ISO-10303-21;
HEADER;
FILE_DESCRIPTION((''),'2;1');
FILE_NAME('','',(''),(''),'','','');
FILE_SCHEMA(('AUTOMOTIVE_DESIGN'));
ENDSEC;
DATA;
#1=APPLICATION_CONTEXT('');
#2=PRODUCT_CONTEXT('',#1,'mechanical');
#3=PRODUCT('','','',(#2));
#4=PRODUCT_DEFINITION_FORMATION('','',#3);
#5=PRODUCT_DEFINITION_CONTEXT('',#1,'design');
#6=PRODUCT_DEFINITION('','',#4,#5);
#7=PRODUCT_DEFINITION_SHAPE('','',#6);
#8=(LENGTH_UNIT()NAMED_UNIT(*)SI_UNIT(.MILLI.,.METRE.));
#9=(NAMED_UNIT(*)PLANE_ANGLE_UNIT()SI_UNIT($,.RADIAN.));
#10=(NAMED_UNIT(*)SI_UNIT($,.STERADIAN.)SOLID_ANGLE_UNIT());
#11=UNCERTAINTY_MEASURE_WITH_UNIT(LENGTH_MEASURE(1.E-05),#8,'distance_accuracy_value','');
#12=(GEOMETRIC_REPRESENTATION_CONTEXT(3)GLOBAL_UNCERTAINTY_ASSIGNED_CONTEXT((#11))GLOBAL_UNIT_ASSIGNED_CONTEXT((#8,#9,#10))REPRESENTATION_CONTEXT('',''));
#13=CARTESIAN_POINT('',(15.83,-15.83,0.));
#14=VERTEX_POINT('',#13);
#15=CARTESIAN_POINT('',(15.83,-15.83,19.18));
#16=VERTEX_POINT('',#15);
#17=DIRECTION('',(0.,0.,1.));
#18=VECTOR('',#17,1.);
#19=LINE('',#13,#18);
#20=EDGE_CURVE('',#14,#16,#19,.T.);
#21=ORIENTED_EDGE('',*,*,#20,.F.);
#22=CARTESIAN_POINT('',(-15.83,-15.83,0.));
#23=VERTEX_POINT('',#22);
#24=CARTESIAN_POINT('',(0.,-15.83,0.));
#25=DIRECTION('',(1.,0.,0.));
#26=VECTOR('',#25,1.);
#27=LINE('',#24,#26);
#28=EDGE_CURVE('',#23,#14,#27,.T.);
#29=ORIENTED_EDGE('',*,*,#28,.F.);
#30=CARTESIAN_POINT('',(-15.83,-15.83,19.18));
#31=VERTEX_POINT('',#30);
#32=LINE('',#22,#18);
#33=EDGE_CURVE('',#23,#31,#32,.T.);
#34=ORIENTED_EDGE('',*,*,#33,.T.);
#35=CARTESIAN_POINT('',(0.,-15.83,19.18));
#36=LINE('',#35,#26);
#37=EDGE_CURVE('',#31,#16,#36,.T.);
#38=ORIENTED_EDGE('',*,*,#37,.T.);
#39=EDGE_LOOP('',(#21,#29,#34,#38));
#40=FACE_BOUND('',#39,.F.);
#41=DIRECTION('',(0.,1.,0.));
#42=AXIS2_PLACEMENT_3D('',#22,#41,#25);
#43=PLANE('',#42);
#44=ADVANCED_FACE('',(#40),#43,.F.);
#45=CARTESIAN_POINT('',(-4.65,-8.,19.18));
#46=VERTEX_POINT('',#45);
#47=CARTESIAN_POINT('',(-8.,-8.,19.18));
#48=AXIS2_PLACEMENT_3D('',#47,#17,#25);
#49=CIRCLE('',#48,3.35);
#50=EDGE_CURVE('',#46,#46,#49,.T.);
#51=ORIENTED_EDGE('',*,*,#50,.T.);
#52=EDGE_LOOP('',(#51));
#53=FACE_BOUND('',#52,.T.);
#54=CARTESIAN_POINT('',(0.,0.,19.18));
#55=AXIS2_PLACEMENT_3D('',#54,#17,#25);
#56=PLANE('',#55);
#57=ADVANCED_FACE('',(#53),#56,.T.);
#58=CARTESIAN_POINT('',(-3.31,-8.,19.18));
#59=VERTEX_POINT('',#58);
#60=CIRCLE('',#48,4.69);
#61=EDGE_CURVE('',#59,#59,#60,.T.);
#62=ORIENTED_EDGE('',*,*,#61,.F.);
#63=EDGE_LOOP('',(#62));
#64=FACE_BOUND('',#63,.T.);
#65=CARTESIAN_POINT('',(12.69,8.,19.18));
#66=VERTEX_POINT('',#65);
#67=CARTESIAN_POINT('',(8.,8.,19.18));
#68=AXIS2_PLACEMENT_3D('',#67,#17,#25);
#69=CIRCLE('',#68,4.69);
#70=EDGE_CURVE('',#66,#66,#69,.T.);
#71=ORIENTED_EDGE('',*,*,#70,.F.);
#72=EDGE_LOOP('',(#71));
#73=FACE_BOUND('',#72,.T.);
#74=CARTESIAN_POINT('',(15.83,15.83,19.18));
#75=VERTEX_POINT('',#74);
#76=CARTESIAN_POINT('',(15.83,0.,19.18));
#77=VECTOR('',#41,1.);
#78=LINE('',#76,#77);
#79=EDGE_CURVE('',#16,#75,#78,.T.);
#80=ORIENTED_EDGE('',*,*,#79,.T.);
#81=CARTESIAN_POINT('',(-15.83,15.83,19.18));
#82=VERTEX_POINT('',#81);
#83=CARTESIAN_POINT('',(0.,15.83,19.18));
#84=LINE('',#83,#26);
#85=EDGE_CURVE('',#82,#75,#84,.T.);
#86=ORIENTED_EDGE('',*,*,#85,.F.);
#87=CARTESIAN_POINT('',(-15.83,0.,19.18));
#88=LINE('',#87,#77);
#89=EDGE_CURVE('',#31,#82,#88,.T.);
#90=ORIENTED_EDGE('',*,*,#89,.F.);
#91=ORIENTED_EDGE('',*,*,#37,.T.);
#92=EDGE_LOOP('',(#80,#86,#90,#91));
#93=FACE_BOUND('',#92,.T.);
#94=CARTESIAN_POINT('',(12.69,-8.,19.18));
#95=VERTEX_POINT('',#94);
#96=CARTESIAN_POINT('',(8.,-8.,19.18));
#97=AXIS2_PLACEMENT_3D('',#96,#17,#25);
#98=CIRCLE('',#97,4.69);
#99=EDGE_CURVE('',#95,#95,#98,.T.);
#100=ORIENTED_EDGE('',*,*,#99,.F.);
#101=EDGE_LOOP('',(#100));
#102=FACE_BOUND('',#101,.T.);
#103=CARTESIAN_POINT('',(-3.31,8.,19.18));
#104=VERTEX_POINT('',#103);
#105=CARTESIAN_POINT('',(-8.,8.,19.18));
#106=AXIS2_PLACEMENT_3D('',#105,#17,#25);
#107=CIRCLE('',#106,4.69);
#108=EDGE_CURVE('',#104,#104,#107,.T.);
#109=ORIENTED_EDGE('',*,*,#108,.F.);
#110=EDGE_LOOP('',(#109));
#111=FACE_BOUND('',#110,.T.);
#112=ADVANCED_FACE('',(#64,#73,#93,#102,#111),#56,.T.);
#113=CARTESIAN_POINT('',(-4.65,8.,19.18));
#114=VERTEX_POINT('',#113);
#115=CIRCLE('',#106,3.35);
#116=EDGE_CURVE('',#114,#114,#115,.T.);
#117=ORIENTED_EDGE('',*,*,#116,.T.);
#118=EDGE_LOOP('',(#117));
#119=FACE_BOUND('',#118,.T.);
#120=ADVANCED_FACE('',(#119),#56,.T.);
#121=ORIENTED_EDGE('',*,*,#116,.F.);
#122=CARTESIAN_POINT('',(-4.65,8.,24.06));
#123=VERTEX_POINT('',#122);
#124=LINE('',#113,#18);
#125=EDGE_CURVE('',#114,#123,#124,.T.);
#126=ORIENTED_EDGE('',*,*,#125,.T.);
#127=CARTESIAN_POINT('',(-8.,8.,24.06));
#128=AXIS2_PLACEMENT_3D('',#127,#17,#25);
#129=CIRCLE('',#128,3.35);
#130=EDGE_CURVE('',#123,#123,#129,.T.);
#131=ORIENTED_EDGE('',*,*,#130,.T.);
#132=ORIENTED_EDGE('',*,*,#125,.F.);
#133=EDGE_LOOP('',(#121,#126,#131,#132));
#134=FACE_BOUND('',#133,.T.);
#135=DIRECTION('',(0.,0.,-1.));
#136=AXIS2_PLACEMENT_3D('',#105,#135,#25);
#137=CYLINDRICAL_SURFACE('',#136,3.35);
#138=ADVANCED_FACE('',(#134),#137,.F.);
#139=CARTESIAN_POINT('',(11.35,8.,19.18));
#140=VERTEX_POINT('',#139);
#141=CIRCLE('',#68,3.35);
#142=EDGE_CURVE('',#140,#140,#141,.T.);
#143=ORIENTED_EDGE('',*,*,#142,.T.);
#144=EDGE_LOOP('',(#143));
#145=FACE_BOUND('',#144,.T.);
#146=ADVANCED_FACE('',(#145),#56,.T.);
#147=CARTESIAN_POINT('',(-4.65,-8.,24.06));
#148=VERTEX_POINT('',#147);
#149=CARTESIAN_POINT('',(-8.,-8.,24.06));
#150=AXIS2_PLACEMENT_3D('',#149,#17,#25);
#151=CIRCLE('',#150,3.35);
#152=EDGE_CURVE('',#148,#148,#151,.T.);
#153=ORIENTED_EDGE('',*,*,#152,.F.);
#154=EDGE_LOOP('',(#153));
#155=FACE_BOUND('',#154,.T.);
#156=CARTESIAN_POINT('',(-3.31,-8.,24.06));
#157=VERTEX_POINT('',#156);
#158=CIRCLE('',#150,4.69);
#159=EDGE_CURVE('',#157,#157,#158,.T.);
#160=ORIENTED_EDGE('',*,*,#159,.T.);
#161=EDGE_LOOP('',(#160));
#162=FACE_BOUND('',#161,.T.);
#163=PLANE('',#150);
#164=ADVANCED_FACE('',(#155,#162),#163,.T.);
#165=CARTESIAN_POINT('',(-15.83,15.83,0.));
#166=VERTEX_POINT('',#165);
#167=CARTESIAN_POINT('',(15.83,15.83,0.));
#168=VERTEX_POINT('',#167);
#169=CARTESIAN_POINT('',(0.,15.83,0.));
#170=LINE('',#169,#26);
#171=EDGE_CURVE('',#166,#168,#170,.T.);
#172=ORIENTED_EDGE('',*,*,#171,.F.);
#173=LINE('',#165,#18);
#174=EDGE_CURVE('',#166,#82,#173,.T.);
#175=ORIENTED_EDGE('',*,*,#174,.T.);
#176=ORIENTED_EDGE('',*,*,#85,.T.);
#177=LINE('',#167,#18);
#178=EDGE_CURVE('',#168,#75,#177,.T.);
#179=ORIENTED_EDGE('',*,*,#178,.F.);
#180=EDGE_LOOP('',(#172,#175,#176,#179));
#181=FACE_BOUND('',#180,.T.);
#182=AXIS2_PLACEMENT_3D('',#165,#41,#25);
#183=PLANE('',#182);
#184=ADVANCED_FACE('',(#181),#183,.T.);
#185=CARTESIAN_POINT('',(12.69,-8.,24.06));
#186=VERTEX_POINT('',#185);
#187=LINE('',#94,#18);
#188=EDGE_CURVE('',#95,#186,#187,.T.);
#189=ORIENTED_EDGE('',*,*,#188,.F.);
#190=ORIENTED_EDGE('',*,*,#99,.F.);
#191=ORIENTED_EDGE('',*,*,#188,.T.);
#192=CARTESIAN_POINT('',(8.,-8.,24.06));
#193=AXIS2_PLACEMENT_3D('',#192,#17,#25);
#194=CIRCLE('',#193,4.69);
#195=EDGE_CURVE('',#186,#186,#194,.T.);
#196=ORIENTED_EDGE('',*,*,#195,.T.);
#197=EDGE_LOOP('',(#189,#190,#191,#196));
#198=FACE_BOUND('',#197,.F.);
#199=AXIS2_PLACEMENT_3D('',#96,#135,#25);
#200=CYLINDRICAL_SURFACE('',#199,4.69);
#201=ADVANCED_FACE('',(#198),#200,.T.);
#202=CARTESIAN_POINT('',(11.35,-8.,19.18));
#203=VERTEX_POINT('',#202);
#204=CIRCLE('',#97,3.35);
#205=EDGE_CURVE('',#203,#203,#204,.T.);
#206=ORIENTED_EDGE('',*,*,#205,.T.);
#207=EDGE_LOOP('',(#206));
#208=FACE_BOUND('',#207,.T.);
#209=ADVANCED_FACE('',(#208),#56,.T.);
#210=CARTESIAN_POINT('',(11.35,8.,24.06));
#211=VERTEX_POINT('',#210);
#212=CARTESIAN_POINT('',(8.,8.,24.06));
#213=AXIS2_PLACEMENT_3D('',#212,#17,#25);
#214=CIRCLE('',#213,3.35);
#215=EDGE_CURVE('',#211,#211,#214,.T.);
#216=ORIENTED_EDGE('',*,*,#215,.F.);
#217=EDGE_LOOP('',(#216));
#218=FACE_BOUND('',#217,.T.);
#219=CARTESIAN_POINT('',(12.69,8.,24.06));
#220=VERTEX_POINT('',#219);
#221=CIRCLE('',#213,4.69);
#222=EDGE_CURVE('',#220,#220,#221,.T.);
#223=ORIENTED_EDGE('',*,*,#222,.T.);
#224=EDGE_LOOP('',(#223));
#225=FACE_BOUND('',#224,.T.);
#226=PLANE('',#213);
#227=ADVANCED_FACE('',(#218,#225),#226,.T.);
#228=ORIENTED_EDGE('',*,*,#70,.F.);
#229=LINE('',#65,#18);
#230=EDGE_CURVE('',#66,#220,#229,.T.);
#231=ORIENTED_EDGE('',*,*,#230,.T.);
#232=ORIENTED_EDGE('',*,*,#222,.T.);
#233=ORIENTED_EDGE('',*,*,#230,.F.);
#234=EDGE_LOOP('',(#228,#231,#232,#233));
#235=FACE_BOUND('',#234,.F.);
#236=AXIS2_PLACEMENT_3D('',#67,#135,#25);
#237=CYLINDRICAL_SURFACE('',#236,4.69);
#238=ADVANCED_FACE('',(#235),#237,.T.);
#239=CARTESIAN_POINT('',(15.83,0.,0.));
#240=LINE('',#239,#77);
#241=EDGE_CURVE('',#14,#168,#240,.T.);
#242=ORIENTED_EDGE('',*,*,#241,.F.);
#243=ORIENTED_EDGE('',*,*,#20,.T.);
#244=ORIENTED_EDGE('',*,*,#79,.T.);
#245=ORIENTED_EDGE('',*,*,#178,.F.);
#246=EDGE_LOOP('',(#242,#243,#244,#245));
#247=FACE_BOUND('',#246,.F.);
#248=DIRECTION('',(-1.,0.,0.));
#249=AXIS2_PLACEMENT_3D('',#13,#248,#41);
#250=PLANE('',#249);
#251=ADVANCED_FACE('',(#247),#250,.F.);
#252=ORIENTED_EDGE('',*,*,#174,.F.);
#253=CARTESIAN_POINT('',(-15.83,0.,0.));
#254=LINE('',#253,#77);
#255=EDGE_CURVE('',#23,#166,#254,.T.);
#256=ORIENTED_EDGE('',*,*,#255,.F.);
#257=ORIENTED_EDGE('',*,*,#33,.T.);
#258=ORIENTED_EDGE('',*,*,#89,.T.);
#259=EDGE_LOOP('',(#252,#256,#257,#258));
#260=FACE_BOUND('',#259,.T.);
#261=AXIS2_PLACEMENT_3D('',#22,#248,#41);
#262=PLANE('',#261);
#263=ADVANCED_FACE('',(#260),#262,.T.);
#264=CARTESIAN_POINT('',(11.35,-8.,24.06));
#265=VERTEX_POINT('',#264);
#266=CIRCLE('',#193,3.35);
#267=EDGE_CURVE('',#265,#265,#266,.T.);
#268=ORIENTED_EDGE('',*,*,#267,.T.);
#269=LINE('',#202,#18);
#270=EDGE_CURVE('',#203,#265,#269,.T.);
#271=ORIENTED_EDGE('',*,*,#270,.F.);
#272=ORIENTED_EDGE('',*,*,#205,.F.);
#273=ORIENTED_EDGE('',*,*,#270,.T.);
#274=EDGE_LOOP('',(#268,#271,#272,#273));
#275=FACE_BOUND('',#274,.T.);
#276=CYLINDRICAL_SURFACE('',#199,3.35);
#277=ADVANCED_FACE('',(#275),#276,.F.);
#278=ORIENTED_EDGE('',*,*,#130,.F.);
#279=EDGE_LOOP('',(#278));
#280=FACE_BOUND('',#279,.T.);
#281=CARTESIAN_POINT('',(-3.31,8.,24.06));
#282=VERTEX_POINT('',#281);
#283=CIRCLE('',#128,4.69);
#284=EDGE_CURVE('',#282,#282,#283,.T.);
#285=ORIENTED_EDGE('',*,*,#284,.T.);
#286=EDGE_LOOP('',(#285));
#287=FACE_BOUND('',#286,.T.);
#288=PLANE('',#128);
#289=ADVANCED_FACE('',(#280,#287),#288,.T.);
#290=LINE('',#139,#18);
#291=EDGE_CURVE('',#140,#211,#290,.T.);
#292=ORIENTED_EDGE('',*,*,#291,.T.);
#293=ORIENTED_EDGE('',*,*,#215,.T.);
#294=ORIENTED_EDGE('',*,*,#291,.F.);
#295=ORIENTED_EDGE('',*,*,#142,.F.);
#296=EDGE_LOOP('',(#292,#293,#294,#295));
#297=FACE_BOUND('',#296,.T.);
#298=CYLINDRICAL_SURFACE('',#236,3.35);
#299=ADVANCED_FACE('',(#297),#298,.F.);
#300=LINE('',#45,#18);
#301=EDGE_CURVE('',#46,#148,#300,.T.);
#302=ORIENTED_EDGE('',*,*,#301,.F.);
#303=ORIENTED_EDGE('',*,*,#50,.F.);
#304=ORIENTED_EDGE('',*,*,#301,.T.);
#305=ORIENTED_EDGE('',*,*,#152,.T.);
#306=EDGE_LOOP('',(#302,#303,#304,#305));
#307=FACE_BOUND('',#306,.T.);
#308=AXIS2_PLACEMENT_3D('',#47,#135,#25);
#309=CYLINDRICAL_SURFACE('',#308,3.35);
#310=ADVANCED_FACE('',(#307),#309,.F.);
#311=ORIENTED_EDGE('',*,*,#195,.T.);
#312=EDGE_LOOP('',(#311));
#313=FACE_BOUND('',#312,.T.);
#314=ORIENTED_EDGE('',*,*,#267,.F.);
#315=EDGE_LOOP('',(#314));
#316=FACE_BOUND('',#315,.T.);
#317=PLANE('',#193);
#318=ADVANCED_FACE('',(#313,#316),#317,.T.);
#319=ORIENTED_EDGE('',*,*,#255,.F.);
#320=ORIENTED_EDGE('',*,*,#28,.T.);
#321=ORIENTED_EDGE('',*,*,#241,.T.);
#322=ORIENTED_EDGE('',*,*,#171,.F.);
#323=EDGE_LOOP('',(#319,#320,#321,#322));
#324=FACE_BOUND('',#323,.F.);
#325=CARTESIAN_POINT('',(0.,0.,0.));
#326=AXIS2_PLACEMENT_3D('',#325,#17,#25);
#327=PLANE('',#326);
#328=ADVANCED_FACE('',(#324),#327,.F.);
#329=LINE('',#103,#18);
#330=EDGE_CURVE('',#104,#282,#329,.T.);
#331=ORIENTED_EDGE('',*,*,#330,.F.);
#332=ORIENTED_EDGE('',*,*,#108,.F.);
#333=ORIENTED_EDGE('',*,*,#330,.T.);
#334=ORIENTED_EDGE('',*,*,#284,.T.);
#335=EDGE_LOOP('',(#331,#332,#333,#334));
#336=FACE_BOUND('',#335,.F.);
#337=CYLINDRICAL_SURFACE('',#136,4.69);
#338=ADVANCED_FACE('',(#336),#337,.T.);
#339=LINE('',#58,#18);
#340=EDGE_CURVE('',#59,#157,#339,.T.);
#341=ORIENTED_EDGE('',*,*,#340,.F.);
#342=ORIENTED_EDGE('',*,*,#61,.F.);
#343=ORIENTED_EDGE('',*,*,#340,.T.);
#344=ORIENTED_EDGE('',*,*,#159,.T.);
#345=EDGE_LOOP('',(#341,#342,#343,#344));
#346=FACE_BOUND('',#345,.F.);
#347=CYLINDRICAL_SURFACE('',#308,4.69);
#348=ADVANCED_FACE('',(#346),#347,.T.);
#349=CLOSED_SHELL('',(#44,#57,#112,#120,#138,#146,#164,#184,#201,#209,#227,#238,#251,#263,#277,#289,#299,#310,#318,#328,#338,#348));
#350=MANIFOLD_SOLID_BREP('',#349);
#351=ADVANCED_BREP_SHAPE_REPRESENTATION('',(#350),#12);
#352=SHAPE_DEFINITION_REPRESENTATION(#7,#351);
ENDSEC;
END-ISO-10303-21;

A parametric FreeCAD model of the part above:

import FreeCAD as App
import Part
import Sketcher

V = App.Vector
Q = App.Units.Quantity

doc = App.newDocument("Part")
params = doc.addObject("Spreadsheet::Sheet", "Params")
for row, (alias, value) in enumerate([
    ("sketch1_width", "31.66 mm"),
    ("pad1_length", "19.18 mm"),
    ("sketch2_diameter", "6.7 mm"),
    ("sketch2_diameter2", "9.38 mm"),
    ("pad2_length", "4.88 mm"),
], start=1):
    params.set(f"A{row}", alias)
    params.set(f"B{row}", "=" + value)
    params.setAlias(f"B{row}", alias)

body = doc.addObject("PartDesign::Body", "Body")

# Sketch on XY plane
sketch1 = body.newObject("Sketcher::SketchObject", "Sketch")
sketch1.AttachmentSupport = (doc.getObject("XY_Plane"), [""])
sketch1.MapMode = "FlatFace"
sketch1.addGeometry([
    Part.LineSegment(V(-16, 16, 0), V(-16, -16, 0)),
    Part.LineSegment(V(-16, -16, 0), V(16, -16, 0)),
    Part.LineSegment(V(16, -16, 0), V(16, 16, 0)),
    Part.LineSegment(V(16, 16, 0), V(-16, 16, 0)),
], False)
sketch1.addConstraint([
    Sketcher.Constraint("Coincident", 0, 2, 1, 1),
    Sketcher.Constraint("Coincident", 1, 2, 2, 1),
    Sketcher.Constraint("Coincident", 2, 2, 3, 1),
    Sketcher.Constraint("Coincident", 3, 2, 0, 1),
    Sketcher.Constraint("Vertical", 0),
    Sketcher.Constraint("Horizontal", 1),
    Sketcher.Constraint("Vertical", 2),
    Sketcher.Constraint("Horizontal", 3),
    Sketcher.Constraint("Symmetric", 0, 2, 2, 2, -1, 1),
    Sketcher.Constraint("Equal", 3, 0),
    Sketcher.Constraint("DistanceX", 1, 1, 1, 2, Q("31.66 mm")),
])
sketch1.setExpression("Constraints[10]", "Params.sketch1_width")
pad1 = body.newObject("PartDesign::Pad", "Pad")
pad1.Profile = sketch1
pad1.setExpression("Length", "Params.pad1_length")

# Sketch on XY plane
sketch2 = body.newObject("Sketcher::SketchObject", "Sketch001")
sketch2.AttachmentSupport = (doc.getObject("XY_Plane"), [""])
sketch2.MapMode = "FlatFace"
sketch2.AttachmentOffset = App.Placement(V(0, 0, 19.18), App.Rotation())
sketch2.addGeometry([
    Part.Circle(V(8, 8, 0), V(0, 0, 1), 4.7),  # 0
    Part.Circle(V(8, 8, 0), V(0, 0, 1), 3.4),  # 1
    Part.Circle(V(-8, 8, 0), V(0, 0, 1), 4.7),  # 2
    Part.Circle(V(-8, 8, 0), V(0, 0, 1), 3.4),  # 3
    Part.Circle(V(-8, -8, 0), V(0, 0, 1), 4.7),  # 4
    Part.Circle(V(-8, -8, 0), V(0, 0, 1), 3.4),  # 5
    Part.Circle(V(8, -8, 0), V(0, 0, 1), 4.7),  # 6
    Part.Circle(V(8, -8, 0), V(0, 0, 1), 3.4),  # 7
], False)
sketch2.addConstraint([
    Sketcher.Constraint("Coincident", 1, 3, 0, 3),
    Sketcher.Constraint("Coincident", 3, 3, 2, 3),
    Sketcher.Constraint("Coincident", 5, 3, 4, 3),
    Sketcher.Constraint("Coincident", 7, 3, 6, 3),
    Sketcher.Constraint("Equal", 0, 2),
    Sketcher.Constraint("Equal", 1, 3),
    Sketcher.Constraint("Equal", 2, 4),
    Sketcher.Constraint("Equal", 3, 5),
    Sketcher.Constraint("Equal", 4, 6),
    Sketcher.Constraint("Equal", 5, 7),
    Sketcher.Constraint("Symmetric", 0, 3, 4, 3, -1, 1),
    Sketcher.Constraint("Symmetric", 2, 3, 6, 3, -1, 1),
    Sketcher.Constraint("Symmetric", 0, 3, 2, 3, -2),
    Sketcher.Constraint("Diameter", 1, Q("6.7 mm")),
    Sketcher.Constraint("Diameter", 0, Q("9.38 mm")),
    Sketcher.Constraint("DistanceX", -1, 1, 0, 3, Q("8 mm")),
    Sketcher.Constraint("DistanceY", -1, 1, 0, 3, Q("8 mm")),
])
sketch2.setExpression("Constraints[13]", "Params.sketch2_diameter")
sketch2.setExpression("Constraints[14]", "Params.sketch2_diameter2")
pad2 = body.newObject("PartDesign::Pad", "Pad001")
pad2.Profile = sketch2
pad2.setExpression("Length", "Params.pad2_length")

doc.recompute()
